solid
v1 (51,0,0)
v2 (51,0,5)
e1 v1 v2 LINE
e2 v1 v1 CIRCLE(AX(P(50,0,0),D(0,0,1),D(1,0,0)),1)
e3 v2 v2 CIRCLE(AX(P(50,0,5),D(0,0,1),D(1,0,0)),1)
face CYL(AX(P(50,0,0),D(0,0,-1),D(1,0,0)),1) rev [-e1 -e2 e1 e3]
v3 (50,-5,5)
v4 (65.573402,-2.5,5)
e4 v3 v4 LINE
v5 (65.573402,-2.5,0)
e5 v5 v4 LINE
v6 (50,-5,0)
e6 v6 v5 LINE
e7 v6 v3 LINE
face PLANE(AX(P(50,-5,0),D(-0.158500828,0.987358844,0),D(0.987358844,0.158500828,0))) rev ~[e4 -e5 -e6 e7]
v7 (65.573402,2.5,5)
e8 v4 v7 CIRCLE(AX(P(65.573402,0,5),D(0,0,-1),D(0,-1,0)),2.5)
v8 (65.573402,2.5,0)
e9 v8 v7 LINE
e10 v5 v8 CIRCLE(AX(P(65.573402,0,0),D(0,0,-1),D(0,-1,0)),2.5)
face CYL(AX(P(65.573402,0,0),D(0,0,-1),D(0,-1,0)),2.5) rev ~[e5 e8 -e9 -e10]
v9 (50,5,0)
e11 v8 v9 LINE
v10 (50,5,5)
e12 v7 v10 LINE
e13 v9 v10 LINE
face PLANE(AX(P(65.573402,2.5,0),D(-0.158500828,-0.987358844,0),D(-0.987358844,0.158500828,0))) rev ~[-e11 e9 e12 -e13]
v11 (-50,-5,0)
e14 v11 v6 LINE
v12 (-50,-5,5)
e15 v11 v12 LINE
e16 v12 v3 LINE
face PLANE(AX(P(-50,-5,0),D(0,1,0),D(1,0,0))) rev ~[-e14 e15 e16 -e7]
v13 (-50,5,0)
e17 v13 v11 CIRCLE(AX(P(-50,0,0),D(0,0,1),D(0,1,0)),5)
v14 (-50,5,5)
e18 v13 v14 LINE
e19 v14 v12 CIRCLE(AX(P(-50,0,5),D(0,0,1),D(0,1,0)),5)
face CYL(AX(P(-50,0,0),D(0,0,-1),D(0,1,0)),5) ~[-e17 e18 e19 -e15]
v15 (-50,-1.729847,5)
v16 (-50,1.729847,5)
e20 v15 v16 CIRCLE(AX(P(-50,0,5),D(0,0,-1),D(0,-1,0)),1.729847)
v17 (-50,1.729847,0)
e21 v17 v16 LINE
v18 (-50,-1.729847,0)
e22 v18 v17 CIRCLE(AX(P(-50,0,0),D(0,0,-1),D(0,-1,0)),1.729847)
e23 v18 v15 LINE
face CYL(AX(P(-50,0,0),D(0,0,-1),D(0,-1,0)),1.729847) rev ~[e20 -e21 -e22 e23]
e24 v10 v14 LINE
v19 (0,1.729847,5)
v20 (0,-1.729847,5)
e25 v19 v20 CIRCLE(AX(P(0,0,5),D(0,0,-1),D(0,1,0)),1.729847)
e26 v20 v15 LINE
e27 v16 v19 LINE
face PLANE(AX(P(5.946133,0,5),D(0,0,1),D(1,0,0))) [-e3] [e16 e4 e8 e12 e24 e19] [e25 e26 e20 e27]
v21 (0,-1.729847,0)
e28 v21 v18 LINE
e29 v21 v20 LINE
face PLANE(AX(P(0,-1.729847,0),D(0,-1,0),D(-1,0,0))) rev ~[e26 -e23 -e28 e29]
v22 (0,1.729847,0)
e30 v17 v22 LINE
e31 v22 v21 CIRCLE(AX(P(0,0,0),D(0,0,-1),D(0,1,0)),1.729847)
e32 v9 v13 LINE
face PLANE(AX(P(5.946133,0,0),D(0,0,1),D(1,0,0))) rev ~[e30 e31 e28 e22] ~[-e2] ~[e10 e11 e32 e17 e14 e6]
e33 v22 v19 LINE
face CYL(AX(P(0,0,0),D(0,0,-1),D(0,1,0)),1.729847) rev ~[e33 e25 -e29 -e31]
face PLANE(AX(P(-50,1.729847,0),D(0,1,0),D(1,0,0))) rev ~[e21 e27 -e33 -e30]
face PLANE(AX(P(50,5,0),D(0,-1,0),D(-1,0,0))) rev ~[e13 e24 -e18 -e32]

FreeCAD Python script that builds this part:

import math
import FreeCAD as App
import Part
import Sketcher
from FreeCAD import Vector
Q = App.Units.Quantity

doc = App.newDocument("Part")
params = doc.addObject("Spreadsheet::Sheet", "Params")
for row, (alias, value) in enumerate([
    ("sketch1_diameter", "2 mm"),
    ("sketch1_radius", "5 mm"),
    ("sketch1_radius2", "2.5 mm"),
    ("sketch1_width", "100 mm"),
    ("pad1_length", "5 mm"),
], start=1):
    params.set(f"A{row}", alias)
    params.set(f"B{row}", "=" + value)
    params.setAlias(f"B{row}", alias)

body = doc.addObject("PartDesign::Body", "Body")

# Sketch on XY plane
sketch1 = body.newObject("Sketcher::SketchObject", "Sketch")
sketch1.AttachmentSupport = (doc.getObject("XY_Plane"), [""])
sketch1.MapMode = "FlatFace"
sketch1.addGeometry([
    Part.LineSegment(Vector(65.6, 2.5, 0), Vector(50, 5, 0)),  # 0
    Part.LineSegment(Vector(50, 5, 0), Vector(-50, 5, 0)),  # 1
    Part.ArcOfCircle(Part.Circle(Vector(-50, 0, 0), Vector(0, 0, 1), 5), math.radians(90), math.radians(270)),  # 2
    Part.LineSegment(Vector(-50, -5, 0), Vector(50, -5, 0)),  # 3
    Part.LineSegment(Vector(50, -5, 0), Vector(65.6, -2.5, 0)),  # 4
    Part.ArcOfCircle(Part.Circle(Vector(65.6, 0, 0), Vector(0, 0, 1), 2.5), math.radians(90), math.radians(270)),  # 5
    Part.LineSegment(Vector(0, -1.7, 0), Vector(-50, -1.7, 0)),  # 6
    Part.ArcOfCircle(Part.Circle(Vector(-50, 0, 0), Vector(0, 0, 1), 1.7), math.radians(90), math.radians(270)),  # 7
    Part.LineSegment(Vector(-50, 1.7, 0), Vector(0, 1.7, 0)),  # 8
    Part.ArcOfCircle(Part.Circle(Vector(0, 0, 0), Vector(0, 0, 1), 1.7), math.radians(-90), math.radians(90)),  # 9
    Part.Circle(Vector(50, 0, 0), Vector(0, 0, 1), 1),  # 10
], False)
sketch1.addConstraint([
    Sketcher.Constraint("Coincident", 0, 2, 1, 1),
    Sketcher.Constraint("Tangent", 1, 2, 2, 1),
    Sketcher.Constraint("Tangent", 2, 2, 3, 1),
    Sketcher.Constraint("Coincident", 3, 2, 4, 1),
    Sketcher.Constraint("Coincident", 4, 2, 5, 2),
    Sketcher.Constraint("Coincident", 5, 1, 0, 1),
    Sketcher.Constraint("Tangent", 6, 2, 7, 2),
    Sketcher.Constraint("Tangent", 7, 1, 8, 1),
    Sketcher.Constraint("Tangent", 8, 2, 9, 2),
    Sketcher.Constraint("Tangent", 9, 1, 6, 1),
    Sketcher.Constraint("Horizontal", 1),
    Sketcher.Constraint("Horizontal", 3),
    Sketcher.Constraint("Horizontal", 6),
    Sketcher.Constraint("Horizontal", 8),
    Sketcher.Constraint("Coincident", 9, 3, -1, 1),
    Sketcher.Constraint("Coincident", 7, 3, 2, 3),
    Sketcher.Constraint("Symmetric", 2, 3, 10, 3, -1, 1),
    Sketcher.Constraint("Symmetric", 4, 2, 5, 1, -1),
    Sketcher.Constraint("Vertical", 10, 3, 0, 2),
    Sketcher.Constraint("Vertical", 0, 2, 3, 2),
    Sketcher.Constraint("Vertical", 5, 3, 4, 2),
    Sketcher.Constraint("Diameter", 10, Q("2 mm")),
    Sketcher.Constraint("Radius", 2, Q("5 mm")),
    Sketcher.Constraint("Radius", 5, Q("2.5 mm")),
    Sketcher.Constraint("DistanceX", 1, 2, 1, 1, Q("100 mm")),
    Sketcher.Constraint("Radius", 7, Q("1.729847 mm")),
    Sketcher.Constraint("DistanceX", -1, 1, 5, 3, Q("65.573402 mm")),
])
sketch1.setExpression("Constraints[21]", "Params.sketch1_diameter")
sketch1.setExpression("Constraints[22]", "Params.sketch1_radius")
sketch1.setExpression("Constraints[23]", "Params.sketch1_radius2")
sketch1.setExpression("Constraints[24]", "Params.sketch1_width")
pad1 = body.newObject("PartDesign::Pad", "Pad")
pad1.Profile = sketch1
pad1.setExpression("Length", "Params.pad1_length")

doc.recompute()
